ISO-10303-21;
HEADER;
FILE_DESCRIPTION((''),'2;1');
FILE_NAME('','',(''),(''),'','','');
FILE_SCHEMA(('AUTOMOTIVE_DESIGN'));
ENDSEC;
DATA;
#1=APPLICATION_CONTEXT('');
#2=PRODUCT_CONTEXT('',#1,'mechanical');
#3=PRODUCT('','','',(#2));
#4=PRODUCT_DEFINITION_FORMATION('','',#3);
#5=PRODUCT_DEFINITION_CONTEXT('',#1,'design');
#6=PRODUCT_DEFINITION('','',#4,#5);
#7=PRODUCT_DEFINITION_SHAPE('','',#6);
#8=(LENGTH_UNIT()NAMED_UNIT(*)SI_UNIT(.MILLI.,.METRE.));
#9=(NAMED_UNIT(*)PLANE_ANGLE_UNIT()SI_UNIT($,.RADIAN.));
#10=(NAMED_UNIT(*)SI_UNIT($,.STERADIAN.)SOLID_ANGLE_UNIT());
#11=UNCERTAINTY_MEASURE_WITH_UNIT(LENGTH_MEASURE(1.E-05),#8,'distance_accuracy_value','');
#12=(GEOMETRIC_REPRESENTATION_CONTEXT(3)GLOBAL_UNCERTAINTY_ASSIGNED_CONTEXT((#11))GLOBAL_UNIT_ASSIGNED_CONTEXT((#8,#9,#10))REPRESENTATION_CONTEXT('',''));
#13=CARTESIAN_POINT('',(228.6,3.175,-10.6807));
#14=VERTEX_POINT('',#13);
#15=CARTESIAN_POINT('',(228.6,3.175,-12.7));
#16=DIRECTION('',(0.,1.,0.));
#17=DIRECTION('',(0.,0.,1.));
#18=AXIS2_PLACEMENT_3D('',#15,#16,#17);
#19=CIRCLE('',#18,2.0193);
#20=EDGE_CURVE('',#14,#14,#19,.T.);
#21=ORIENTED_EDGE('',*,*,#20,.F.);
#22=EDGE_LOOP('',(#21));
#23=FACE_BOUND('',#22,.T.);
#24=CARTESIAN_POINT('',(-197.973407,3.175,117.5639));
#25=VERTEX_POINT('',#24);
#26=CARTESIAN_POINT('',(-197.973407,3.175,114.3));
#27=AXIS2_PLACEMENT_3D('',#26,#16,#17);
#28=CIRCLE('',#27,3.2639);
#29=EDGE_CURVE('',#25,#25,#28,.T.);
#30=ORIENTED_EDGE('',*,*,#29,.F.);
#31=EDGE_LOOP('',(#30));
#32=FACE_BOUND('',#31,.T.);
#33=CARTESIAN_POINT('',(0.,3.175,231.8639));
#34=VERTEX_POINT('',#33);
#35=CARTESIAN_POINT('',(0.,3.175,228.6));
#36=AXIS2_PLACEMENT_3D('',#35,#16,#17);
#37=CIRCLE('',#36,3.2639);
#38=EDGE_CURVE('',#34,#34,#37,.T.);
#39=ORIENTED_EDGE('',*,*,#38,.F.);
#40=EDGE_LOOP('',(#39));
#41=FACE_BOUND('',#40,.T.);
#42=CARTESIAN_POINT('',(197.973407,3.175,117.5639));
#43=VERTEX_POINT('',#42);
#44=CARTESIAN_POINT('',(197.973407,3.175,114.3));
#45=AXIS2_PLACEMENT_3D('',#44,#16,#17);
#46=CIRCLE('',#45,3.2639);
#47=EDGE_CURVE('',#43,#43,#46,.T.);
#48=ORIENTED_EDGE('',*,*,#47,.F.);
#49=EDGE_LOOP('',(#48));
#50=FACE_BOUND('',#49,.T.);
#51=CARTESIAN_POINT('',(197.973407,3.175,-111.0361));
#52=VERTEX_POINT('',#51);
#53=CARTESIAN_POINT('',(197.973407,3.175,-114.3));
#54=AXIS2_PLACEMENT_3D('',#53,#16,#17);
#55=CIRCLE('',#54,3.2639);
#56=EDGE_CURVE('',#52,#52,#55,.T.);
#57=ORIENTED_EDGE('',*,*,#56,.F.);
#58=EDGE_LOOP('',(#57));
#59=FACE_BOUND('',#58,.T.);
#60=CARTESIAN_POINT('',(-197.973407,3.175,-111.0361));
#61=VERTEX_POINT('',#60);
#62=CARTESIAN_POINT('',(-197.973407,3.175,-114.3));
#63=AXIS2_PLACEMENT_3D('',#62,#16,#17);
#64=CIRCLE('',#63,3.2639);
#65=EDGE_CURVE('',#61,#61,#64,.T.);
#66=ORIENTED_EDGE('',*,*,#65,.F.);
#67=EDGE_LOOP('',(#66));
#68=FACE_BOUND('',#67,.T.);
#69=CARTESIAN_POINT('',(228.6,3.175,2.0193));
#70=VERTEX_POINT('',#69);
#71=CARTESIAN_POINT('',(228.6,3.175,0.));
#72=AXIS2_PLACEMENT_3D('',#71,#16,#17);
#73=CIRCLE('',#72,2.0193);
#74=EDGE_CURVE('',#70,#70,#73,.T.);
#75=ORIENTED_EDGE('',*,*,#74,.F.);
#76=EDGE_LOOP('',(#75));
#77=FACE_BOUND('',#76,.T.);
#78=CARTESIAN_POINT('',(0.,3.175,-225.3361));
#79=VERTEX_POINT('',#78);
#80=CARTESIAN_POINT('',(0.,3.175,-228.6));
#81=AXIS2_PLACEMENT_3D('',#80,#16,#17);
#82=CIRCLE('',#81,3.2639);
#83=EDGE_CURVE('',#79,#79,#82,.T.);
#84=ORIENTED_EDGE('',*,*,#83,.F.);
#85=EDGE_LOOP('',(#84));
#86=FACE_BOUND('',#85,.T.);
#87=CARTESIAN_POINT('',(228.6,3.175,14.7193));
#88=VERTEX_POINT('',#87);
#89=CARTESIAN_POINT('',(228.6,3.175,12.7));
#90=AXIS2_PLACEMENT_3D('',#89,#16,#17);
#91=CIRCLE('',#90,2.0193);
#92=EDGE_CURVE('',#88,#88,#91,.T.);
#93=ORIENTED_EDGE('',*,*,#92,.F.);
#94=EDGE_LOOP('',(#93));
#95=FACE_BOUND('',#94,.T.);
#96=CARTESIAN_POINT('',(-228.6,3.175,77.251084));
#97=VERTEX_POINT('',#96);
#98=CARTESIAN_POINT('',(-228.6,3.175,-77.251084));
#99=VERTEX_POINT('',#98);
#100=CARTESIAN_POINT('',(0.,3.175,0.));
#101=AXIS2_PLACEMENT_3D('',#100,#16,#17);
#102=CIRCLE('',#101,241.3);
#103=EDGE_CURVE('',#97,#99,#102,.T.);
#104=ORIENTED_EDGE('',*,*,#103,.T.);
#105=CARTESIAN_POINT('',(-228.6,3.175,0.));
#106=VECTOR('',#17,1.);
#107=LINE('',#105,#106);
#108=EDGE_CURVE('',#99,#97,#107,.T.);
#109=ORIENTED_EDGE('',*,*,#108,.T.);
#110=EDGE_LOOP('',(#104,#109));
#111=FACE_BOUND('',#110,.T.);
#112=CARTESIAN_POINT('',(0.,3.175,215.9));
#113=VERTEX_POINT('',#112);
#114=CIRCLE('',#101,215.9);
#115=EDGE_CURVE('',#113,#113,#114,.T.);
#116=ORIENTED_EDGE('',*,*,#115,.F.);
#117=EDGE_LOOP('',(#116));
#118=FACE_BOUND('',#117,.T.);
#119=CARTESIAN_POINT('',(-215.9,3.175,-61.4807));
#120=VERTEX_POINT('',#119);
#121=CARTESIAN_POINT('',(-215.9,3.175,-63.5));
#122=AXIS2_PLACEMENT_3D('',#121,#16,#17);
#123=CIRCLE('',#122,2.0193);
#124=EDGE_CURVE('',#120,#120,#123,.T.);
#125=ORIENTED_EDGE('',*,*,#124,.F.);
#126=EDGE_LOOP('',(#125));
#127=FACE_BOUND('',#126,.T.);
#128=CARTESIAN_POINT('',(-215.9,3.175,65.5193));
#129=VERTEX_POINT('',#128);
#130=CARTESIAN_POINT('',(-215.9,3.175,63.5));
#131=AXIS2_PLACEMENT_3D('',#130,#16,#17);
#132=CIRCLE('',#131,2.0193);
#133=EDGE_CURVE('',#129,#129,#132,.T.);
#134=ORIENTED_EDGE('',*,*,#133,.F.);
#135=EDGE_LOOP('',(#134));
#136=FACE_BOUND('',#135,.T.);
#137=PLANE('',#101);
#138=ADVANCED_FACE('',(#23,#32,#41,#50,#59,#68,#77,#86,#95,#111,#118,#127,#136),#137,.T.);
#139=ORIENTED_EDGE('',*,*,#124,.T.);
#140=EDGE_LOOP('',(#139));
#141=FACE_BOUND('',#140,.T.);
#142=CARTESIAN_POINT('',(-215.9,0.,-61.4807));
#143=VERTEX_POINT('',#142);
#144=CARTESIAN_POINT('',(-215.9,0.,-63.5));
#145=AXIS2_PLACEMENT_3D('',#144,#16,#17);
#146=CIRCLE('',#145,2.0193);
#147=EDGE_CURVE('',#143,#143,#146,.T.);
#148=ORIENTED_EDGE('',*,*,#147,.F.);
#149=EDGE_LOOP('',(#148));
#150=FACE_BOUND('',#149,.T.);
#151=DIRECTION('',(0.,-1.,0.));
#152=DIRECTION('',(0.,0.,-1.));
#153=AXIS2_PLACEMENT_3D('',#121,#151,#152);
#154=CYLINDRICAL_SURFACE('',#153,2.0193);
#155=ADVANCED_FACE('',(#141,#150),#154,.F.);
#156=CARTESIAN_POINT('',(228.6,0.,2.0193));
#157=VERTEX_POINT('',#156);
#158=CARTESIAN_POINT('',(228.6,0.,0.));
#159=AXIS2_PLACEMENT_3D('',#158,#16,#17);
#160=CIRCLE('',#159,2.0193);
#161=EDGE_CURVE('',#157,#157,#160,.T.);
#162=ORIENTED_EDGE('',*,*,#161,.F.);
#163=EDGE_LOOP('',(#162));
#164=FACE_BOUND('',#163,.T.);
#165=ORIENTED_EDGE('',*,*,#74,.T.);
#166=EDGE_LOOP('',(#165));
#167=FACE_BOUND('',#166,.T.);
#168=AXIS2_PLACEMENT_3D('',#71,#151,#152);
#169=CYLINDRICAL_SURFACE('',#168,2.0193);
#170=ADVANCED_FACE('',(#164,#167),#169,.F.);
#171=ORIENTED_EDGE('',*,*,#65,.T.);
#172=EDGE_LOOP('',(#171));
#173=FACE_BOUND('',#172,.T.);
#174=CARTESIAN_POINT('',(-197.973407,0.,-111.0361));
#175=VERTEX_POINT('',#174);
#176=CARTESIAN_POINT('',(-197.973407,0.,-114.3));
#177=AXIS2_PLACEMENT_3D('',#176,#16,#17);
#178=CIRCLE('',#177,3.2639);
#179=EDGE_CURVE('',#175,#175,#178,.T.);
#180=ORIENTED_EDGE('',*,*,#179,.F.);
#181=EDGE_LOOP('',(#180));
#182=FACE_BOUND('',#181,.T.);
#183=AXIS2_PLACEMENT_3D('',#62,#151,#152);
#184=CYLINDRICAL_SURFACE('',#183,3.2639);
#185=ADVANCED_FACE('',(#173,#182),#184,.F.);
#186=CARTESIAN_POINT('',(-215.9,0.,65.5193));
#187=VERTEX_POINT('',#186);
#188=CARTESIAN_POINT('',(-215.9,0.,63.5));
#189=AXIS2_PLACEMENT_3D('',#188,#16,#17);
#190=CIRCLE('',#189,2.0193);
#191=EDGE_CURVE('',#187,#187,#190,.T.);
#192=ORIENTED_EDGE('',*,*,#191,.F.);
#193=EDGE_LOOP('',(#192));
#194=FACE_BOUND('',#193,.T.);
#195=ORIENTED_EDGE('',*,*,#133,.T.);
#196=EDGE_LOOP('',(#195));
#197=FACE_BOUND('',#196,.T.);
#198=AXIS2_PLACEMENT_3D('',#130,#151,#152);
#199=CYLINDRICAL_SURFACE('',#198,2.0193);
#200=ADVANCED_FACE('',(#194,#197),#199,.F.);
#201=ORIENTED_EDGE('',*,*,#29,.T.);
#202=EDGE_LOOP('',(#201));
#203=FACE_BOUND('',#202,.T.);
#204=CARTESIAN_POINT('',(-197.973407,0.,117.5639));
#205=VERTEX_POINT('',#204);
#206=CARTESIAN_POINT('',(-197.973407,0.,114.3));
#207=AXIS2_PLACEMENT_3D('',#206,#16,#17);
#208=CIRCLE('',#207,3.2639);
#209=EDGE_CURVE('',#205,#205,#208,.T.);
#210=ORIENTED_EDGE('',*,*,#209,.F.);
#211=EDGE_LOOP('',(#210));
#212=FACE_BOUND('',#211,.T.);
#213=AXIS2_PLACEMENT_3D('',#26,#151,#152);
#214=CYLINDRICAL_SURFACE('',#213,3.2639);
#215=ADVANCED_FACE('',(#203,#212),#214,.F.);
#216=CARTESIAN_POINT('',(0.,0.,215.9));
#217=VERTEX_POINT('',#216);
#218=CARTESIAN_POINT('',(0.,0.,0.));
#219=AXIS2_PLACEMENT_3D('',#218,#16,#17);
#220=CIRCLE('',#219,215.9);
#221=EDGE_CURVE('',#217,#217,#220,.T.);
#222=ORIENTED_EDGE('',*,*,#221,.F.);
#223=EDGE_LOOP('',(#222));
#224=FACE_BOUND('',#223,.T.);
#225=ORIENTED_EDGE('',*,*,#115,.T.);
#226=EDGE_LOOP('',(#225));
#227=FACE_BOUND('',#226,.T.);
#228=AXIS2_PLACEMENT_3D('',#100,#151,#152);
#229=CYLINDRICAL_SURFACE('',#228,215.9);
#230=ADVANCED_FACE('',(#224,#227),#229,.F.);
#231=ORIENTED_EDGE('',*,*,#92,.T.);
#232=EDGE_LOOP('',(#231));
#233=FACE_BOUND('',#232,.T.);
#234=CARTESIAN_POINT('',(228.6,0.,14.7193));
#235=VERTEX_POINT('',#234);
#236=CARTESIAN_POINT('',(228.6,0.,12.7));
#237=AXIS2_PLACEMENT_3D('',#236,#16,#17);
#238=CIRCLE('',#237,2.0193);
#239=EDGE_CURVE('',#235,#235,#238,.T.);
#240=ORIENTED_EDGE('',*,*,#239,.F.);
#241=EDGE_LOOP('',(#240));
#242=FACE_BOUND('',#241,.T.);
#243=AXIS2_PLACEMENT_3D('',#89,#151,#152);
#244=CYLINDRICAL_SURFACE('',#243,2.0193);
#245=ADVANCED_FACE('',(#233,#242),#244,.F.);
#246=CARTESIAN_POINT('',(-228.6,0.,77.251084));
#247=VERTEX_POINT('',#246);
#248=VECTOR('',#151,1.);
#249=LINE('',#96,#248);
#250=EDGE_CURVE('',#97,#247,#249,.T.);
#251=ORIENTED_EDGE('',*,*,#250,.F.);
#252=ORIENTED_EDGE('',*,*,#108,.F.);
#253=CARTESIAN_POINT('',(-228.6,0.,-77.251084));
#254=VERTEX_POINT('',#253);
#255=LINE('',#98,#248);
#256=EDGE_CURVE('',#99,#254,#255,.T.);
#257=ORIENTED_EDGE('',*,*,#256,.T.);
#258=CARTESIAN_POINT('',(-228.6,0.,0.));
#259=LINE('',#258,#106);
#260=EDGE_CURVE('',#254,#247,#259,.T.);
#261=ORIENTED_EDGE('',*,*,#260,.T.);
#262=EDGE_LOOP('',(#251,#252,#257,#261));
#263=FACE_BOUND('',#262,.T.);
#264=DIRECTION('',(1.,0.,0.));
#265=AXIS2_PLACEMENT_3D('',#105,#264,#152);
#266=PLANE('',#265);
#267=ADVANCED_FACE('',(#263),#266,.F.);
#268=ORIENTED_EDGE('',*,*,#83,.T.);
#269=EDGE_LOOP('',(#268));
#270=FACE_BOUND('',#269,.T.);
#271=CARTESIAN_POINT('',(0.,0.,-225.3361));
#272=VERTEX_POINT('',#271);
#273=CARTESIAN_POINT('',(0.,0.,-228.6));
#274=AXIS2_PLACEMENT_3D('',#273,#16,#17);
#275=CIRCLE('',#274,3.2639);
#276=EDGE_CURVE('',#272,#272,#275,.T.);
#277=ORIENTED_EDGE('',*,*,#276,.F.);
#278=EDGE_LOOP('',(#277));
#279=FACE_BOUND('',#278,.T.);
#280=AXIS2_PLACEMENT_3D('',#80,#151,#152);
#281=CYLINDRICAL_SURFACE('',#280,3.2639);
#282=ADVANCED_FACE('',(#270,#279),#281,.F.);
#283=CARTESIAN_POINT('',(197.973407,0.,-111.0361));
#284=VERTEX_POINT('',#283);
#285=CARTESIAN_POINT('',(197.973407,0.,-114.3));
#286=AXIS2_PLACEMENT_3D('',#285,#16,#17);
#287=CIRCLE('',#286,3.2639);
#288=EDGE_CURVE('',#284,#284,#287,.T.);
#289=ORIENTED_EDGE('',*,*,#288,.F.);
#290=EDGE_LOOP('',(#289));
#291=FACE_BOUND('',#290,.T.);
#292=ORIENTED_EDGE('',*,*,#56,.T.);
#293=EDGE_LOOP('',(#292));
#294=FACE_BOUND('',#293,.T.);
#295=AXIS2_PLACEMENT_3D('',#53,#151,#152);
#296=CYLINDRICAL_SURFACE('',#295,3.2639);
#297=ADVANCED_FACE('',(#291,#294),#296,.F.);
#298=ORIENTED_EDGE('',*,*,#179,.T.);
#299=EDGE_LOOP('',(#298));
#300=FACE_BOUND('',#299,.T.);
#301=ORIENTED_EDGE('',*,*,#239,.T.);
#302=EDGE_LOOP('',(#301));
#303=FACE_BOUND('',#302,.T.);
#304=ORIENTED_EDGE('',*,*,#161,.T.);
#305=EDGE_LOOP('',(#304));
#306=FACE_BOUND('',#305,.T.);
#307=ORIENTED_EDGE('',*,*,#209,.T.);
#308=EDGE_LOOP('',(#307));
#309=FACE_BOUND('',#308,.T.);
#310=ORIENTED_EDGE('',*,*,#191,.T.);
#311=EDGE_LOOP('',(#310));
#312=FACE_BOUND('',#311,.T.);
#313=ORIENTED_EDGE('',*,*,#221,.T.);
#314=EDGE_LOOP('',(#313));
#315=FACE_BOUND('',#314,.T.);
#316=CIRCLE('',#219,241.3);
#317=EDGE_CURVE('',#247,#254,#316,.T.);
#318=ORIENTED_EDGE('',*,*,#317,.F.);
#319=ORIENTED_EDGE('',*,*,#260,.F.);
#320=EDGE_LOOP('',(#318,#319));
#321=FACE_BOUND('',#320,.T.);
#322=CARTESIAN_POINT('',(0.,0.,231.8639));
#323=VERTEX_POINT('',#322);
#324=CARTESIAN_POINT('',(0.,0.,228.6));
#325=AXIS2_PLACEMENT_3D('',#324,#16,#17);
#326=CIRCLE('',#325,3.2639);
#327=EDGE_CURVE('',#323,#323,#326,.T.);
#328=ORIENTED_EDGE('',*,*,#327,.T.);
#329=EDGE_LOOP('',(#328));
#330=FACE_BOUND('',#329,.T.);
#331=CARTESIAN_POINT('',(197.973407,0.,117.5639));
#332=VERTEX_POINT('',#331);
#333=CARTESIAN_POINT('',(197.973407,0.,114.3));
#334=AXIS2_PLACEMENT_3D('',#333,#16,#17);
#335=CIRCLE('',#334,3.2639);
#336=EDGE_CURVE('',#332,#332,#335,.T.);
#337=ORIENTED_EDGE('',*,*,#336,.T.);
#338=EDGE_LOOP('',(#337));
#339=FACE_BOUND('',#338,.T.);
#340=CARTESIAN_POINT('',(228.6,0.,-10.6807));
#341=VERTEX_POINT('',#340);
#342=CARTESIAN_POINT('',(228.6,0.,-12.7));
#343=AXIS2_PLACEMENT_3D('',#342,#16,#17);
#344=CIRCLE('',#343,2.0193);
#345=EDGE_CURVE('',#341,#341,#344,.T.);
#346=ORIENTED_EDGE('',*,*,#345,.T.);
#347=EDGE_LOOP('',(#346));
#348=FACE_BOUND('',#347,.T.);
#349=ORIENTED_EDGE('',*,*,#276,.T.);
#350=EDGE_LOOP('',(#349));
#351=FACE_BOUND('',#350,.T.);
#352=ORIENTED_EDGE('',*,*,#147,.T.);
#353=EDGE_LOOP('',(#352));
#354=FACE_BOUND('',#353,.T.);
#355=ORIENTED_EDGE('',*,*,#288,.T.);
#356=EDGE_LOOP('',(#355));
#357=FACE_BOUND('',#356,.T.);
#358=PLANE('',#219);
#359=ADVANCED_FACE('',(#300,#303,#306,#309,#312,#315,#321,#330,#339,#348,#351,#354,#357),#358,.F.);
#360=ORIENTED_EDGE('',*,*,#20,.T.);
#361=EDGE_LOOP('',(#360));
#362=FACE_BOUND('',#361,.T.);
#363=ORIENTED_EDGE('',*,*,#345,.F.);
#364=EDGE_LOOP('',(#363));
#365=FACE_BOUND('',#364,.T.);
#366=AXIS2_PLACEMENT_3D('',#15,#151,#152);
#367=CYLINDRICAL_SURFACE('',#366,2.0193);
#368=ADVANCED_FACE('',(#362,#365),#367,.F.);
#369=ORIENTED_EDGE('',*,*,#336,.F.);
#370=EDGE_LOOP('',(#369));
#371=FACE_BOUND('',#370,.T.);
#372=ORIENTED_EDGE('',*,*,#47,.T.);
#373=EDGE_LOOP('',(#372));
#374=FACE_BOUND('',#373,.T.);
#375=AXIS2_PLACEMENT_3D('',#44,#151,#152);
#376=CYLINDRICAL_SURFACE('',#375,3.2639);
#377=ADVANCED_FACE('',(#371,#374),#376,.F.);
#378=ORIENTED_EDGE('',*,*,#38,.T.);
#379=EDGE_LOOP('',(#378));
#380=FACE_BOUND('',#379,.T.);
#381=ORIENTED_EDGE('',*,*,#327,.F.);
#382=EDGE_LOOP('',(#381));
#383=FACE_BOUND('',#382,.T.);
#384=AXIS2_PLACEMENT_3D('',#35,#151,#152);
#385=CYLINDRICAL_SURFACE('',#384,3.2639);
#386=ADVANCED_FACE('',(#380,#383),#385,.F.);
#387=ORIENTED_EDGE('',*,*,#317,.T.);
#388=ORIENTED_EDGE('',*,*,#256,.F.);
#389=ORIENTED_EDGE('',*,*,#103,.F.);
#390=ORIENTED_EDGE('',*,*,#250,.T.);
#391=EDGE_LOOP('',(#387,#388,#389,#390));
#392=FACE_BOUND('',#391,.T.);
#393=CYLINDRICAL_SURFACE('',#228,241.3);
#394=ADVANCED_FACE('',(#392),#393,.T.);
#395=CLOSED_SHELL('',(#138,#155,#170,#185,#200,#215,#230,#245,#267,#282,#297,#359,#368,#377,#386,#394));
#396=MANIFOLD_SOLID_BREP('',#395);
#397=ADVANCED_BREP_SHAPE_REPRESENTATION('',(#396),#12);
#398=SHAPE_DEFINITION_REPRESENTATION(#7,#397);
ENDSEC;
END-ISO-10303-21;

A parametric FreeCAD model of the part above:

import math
import FreeCAD as App
import Part
import Sketcher
Q = App.Units.Quantity

doc = App.newDocument("Part")
body = doc.addObject("PartDesign::Body", "Body")

sketch1 = body.newObject("Sketcher::SketchObject", "Sketch")
sketch1.AttachmentSupport = (doc.getObject("XZ_Plane"), [""])
sketch1.MapMode = "FlatFace"
sketch1.addGeometry([
    Part.ArcOfCircle(Part.Circle(App.Vector(0, 0, 0), App.Vector(0, 0, 1), 241.3), math.radians(-161), math.radians(0)),
    Part.LineSegment(App.Vector(-228.6, -77.3, 0), App.Vector(-228.6, 77.3, 0)),
    Part.ArcOfCircle(Part.Circle(App.Vector(0, 0, 0), App.Vector(0, 0, 1), 241.3), math.radians(0), math.radians(161)),
    Part.Circle(App.Vector(0, 228.6, 0), App.Vector(0, 0, 1), 3.3),
    Part.Circle(App.Vector(-198, 114.3, 0), App.Vector(0, 0, 1), 3.3),
    Part.Circle(App.Vector(-215.9, 63.5, 0), App.Vector(0, 0, 1), 2),
    Part.Circle(App.Vector(0, 0, 0), App.Vector(0, 0, 1), 215.9),
    Part.Circle(App.Vector(198, 114.3, 0), App.Vector(0, 0, 1), 3.3),
    Part.Circle(App.Vector(228.6, 12.7, 0), App.Vector(0, 0, 1), 2),
    Part.Circle(App.Vector(228.6, 0, 0), App.Vector(0, 0, 1), 2),
    Part.Circle(App.Vector(-215.9, -63.5, 0), App.Vector(0, 0, 1), 2),
    Part.Circle(App.Vector(-198, -114.3, 0), App.Vector(0, 0, 1), 3.3),
    Part.Circle(App.Vector(0, -228.6, 0), App.Vector(0, 0, 1), 3.3),
    Part.Circle(App.Vector(228.6, -12.7, 0), App.Vector(0, 0, 1), 2),
    Part.Circle(App.Vector(198, -114.3, 0), App.Vector(0, 0, 1), 3.3),
], False)
sketch1.addConstraint([
    Sketcher.Constraint("Coincident", 0, 1, 1, 1),
    Sketcher.Constraint("Coincident", 1, 2, 2, 2),
    Sketcher.Constraint("Tangent", 2, 1, 0, 2),
    Sketcher.Constraint("Vertical", 1),
    Sketcher.Constraint("Coincident", 0, 3, -1, 1),
    Sketcher.Constraint("Coincident", 6, 3, -1, 1),
    Sketcher.Constraint("Equal", 0, 2),
    Sketcher.Constraint("Equal", 3, 4),
    Sketcher.Constraint("Equal", 4, 7),
    Sketcher.Constraint("Equal", 5, 8),
    Sketcher.Constraint("Equal", 8, 9),
    Sketcher.Constraint("Equal", 9, 10),
    Sketcher.Constraint("Equal", 7, 11),
    Sketcher.Constraint("Equal", 11, 12),
    Sketcher.Constraint("Equal", 10, 13),
    Sketcher.Constraint("Equal", 12, 14),
    Sketcher.Constraint("Symmetric", 7, 3, 11, 3, -1, 1),
    Sketcher.Constraint("Symmetric", 3, 3, 12, 3, -1, 1),
    Sketcher.Constraint("Symmetric", 4, 3, 14, 3, -1, 1),
    Sketcher.Constraint("Symmetric", 4, 3, 7, 3, -2),
    Sketcher.Constraint("Symmetric", 5, 3, 10, 3, -1),
    Sketcher.Constraint("Symmetric", 8, 3, 13, 3, -1),
    Sketcher.Constraint("PointOnObject", 3, 3, -2),
    Sketcher.Constraint("PointOnObject", 9, 3, -1),
    Sketcher.Constraint("PointOnObject", 2, 1, -1),
    Sketcher.Constraint("Vertical", 8, 3, 9, 3),
    Sketcher.Constraint("Diameter", 6, Q("17 in")),
    Sketcher.Constraint("Radius", 0, Q("9.5 in")),
    Sketcher.Constraint("Diameter", 3, Q("0.257 in")),
    Sketcher.Constraint("Diameter", 5, Q("0.159 in")),
    Sketcher.Constraint("DistanceY", -1, 1, 3, 3, Q("9 in")),
    Sketcher.Constraint("DistanceX", -1, 1, 8, 3, Q("9 in")),
    Sketcher.Constraint("DistanceX", 0, 1, -1, 1, Q("9 in")),
    Sketcher.Constraint("DistanceY", 5, 3, 4, 3, Q("2 in")),
    Sketcher.Constraint("DistanceY", 8, 3, 7, 3, Q("4 in")),
    Sketcher.Constraint("DistanceY", 10, 3, 5, 3, Q("5 in")),
    Sketcher.Constraint("DistanceX", 5, 3, -1, 1, Q("8.5 in")),
    Sketcher.Constraint("DistanceX", 4, 3, -1, 1, 197.973407),
])
pad1 = body.newObject("PartDesign::Pad", "Pad")
pad1.Profile = sketch1
pad1.Length = Q("0.125 in")
pad1.Reversed = True

doc.recompute()
